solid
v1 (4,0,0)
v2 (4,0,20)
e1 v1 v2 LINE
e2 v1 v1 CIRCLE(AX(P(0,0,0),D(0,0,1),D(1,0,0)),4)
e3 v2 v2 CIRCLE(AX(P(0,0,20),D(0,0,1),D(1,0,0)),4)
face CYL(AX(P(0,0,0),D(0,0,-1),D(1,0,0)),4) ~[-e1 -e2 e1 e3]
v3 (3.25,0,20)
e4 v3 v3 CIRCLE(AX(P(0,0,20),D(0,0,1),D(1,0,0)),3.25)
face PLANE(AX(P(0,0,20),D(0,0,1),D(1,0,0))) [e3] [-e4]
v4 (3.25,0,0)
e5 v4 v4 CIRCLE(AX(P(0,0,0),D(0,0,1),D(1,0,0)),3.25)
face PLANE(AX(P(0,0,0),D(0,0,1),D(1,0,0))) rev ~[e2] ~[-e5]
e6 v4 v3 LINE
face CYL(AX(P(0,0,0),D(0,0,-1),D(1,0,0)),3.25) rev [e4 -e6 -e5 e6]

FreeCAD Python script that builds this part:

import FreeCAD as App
import Part
import Sketcher
from FreeCAD import Vector

doc = App.newDocument("Part")
params = doc.addObject("Spreadsheet::Sheet", "Params")
for row, (alias, value) in enumerate([
    ("sketch1_diameter", "8 mm"),
    ("sketch1_diameter2", "6.5 mm"),
    ("pad1_length", "20 mm"),
], start=1):
    params.set(f"A{row}", alias)
    params.set(f"B{row}", "=" + value)
    params.setAlias(f"B{row}", alias)

body = doc.addObject("PartDesign::Body", "Body")

# Sketch on XY plane
sketch1 = body.newObject("Sketcher::SketchObject", "Sketch")
sketch1.AttachmentSupport = (doc.getObject("XY_Plane"), [""])
sketch1.MapMode = "FlatFace"
sketch1.addGeometry(Part.Circle(Vector(0, 0, 0), Vector(0, 0, 1), 4), False)
sketch1.addGeometry(Part.Circle(Vector(0, 0, 0), Vector(0, 0, 1), 3.2), False)
sketch1.addConstraint(Sketcher.Constraint("Coincident", 0, 3, -1, 1))
sketch1.addConstraint(Sketcher.Constraint("Coincident", 1, 3, -1, 1))
sketch1.addConstraint(Sketcher.Constraint("Diameter", 0, 8.0))
sketch1.addConstraint(Sketcher.Constraint("Diameter", 1, 6.5))
sketch1.setExpression("Constraints[2]", "Params.sketch1_diameter")
sketch1.setExpression("Constraints[3]", "Params.sketch1_diameter2")
pad1 = body.newObject("PartDesign::Pad", "Pad")
pad1.Profile = sketch1
pad1.setExpression("Length", "Params.pad1_length")

doc.recompute()
